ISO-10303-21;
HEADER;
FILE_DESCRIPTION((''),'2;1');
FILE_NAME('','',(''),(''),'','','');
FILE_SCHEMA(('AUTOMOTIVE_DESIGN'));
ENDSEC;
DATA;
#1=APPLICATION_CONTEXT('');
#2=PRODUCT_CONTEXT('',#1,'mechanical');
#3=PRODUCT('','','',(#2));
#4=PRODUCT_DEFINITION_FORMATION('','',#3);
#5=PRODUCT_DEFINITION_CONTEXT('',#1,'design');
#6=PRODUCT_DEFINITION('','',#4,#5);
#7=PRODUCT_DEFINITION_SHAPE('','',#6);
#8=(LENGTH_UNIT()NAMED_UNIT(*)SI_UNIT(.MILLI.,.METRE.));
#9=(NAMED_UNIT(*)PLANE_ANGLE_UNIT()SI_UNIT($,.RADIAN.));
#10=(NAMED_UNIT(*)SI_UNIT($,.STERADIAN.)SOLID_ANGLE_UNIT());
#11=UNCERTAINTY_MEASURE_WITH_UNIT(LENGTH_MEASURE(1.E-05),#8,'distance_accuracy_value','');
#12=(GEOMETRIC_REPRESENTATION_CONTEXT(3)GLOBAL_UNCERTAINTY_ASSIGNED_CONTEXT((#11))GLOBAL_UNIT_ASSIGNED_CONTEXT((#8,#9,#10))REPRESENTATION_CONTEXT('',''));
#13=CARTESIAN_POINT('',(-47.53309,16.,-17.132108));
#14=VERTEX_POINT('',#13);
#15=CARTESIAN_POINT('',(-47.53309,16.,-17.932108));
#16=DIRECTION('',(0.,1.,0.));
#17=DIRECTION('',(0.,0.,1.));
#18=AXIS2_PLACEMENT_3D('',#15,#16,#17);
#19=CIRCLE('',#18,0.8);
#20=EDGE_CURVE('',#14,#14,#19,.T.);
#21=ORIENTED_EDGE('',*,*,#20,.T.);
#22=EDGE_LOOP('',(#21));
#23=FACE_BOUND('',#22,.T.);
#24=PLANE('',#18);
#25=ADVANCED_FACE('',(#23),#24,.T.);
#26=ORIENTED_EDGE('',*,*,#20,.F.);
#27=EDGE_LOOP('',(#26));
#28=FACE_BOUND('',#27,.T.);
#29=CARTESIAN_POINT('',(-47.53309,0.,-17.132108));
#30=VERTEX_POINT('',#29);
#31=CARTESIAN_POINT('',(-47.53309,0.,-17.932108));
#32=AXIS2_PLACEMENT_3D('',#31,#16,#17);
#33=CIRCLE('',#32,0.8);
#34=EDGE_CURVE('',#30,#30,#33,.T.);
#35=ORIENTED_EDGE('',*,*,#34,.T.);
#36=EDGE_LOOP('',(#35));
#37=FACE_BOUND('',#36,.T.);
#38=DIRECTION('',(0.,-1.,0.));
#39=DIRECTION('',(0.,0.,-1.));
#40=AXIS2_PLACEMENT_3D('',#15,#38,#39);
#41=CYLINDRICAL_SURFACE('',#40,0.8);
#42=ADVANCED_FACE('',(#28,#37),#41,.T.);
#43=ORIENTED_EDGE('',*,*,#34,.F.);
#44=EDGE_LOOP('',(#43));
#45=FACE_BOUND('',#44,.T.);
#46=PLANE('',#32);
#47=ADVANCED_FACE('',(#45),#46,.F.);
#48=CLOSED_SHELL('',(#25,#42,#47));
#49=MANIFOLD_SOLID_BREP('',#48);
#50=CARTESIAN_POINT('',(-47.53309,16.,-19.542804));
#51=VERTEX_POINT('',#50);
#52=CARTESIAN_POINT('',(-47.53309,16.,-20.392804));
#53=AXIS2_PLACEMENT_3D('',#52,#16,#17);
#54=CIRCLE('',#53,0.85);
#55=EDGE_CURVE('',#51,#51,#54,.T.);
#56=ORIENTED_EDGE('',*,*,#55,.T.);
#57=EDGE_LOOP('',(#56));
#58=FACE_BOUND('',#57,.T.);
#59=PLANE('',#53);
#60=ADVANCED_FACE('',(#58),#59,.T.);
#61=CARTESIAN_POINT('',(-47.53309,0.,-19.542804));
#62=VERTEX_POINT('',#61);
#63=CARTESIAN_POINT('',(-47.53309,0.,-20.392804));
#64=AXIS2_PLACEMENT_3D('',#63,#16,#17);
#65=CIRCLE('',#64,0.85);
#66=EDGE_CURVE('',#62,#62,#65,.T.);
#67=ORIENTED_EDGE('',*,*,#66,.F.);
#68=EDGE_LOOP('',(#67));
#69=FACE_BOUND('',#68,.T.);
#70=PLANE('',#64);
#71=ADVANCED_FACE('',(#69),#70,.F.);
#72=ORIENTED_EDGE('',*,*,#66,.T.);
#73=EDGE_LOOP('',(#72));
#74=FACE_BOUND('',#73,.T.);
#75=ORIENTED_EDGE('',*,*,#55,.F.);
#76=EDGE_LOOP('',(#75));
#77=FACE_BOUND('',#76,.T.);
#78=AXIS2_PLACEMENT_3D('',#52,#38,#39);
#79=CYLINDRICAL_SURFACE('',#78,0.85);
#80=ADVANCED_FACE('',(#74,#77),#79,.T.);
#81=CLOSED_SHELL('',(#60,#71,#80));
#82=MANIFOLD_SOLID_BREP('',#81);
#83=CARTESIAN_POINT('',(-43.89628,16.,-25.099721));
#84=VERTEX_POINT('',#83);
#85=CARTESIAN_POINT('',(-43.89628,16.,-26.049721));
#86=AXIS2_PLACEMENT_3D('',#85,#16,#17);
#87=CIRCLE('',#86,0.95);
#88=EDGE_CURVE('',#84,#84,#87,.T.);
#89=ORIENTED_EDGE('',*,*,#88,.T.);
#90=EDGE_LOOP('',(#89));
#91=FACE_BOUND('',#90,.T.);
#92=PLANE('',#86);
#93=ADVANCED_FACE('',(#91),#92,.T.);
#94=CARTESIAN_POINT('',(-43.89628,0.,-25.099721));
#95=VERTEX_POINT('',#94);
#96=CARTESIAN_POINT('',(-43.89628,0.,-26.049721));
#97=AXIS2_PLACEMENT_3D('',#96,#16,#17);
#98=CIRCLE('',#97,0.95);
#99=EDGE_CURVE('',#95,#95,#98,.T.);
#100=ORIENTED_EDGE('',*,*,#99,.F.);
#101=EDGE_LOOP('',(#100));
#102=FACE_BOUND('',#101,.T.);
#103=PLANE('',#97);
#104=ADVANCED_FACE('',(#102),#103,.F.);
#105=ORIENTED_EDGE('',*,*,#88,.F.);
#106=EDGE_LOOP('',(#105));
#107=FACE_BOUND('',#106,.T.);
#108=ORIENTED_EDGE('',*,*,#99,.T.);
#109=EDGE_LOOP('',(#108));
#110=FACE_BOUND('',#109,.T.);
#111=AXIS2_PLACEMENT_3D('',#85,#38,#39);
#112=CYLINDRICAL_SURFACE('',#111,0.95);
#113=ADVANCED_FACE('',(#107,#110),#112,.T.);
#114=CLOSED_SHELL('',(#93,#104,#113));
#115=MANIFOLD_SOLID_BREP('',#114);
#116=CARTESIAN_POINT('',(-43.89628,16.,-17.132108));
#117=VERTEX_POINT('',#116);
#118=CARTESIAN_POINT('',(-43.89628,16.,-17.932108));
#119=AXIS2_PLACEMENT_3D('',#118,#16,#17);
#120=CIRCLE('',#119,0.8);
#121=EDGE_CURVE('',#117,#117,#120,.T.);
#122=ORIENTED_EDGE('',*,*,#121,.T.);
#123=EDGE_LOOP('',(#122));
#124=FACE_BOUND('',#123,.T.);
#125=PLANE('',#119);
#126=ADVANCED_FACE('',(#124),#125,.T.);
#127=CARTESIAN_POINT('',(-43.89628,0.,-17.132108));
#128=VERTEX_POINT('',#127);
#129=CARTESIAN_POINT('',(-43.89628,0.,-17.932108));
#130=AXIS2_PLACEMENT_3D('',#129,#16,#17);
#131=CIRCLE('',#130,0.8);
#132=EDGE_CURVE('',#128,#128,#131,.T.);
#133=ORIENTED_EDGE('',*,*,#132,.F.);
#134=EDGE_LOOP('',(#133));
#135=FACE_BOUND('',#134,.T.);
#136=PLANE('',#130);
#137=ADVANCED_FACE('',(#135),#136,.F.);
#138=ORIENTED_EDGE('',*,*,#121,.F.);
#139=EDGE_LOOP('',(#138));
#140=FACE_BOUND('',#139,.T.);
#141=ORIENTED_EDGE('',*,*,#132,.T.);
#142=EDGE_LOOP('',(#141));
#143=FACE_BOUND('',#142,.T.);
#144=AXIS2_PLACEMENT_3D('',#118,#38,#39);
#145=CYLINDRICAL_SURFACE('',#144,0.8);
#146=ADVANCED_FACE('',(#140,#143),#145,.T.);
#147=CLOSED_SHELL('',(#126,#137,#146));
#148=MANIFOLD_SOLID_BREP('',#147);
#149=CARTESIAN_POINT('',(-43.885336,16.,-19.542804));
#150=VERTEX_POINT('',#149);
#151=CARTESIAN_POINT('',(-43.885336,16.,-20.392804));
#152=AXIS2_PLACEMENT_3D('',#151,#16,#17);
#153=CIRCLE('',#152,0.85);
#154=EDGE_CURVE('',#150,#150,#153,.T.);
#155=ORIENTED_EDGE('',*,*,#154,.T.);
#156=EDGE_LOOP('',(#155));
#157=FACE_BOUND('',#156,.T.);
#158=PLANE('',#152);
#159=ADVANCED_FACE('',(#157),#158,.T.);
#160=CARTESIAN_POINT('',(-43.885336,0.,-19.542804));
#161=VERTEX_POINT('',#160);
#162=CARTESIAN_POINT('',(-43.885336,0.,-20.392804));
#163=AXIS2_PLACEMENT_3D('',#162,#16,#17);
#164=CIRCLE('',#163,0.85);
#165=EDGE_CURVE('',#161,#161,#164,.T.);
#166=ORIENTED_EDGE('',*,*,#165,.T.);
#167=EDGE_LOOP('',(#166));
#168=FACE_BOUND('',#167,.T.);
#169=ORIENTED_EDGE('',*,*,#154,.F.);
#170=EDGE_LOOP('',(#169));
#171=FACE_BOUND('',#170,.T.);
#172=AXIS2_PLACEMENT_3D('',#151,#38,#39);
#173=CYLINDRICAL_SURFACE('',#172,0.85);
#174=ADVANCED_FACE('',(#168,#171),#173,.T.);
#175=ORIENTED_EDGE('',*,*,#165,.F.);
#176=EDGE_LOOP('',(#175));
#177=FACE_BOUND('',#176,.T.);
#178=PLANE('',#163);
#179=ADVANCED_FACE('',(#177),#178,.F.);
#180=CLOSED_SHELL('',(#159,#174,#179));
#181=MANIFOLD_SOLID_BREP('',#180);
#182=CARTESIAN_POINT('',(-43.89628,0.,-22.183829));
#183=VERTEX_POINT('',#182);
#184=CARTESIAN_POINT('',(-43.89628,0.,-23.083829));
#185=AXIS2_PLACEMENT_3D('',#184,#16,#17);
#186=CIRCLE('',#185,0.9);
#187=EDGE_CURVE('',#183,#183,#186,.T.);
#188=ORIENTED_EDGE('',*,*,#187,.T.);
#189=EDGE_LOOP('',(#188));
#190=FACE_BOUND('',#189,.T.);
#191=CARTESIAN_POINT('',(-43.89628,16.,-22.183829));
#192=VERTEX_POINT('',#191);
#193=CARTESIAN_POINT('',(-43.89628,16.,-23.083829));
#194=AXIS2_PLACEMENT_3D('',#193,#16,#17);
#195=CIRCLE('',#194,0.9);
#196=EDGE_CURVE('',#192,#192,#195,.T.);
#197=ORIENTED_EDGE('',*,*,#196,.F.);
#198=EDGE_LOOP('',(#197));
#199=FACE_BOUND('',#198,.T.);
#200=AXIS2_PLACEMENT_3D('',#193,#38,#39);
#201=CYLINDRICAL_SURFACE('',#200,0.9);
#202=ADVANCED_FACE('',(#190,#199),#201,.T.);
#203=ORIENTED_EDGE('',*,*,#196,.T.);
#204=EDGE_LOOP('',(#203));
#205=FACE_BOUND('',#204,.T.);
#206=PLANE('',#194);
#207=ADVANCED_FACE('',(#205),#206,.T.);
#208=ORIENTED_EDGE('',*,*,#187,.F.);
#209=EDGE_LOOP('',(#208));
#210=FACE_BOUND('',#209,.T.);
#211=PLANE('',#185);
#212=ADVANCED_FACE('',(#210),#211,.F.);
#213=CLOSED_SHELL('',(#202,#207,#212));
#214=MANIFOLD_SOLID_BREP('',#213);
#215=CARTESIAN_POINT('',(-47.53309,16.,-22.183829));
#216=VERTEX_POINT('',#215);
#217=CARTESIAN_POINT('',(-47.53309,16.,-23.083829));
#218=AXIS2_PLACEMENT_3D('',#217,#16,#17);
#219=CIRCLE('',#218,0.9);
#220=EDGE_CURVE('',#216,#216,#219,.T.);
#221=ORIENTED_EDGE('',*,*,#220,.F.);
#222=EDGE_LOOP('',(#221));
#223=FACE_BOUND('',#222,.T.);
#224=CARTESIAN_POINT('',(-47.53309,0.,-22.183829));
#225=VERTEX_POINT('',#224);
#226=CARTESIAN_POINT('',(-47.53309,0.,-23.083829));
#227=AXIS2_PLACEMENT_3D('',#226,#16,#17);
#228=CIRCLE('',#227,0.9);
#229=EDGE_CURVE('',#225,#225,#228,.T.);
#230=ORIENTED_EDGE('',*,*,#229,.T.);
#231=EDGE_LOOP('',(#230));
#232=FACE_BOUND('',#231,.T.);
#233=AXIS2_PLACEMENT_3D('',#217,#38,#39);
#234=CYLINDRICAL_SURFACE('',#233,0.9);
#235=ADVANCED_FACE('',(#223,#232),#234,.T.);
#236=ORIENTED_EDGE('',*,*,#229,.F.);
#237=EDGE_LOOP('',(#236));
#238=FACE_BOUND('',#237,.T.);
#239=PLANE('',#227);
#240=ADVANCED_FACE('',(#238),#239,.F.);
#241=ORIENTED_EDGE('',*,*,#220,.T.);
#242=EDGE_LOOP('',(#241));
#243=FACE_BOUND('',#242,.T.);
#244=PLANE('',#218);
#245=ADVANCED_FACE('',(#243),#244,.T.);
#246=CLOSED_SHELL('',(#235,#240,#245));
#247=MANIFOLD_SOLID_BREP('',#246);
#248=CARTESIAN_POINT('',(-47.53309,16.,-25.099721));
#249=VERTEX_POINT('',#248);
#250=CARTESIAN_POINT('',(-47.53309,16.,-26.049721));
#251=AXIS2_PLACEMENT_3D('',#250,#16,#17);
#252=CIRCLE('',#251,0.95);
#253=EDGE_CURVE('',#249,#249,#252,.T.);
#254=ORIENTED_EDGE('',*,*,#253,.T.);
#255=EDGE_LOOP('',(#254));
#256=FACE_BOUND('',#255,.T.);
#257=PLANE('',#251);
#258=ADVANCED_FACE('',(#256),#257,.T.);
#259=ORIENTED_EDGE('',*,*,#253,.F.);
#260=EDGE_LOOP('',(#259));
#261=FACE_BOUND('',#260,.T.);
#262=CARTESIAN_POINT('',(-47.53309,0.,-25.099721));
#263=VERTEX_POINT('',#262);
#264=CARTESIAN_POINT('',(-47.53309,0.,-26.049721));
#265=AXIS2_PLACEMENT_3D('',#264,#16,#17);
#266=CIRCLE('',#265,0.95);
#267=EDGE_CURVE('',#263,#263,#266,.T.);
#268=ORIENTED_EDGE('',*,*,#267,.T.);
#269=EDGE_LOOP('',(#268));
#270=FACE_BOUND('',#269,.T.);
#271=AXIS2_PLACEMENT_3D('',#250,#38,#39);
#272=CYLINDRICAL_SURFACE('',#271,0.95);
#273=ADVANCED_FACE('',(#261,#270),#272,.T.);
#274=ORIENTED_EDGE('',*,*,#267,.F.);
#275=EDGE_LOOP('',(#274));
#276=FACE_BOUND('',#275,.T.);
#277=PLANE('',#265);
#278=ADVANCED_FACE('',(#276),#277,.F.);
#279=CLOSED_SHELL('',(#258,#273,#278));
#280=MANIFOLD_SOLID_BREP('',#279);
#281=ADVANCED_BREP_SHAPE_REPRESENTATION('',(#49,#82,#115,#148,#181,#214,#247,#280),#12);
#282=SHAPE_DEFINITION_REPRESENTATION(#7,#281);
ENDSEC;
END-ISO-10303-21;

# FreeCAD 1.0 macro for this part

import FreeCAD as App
import Part
import Sketcher
Q = App.Units.Quantity

doc = App.newDocument("Part")
body = doc.addObject("PartDesign::Body", "Body")

sketch1 = body.newObject("Sketcher::SketchObject", "Sketch")
sketch1.AttachmentSupport = (doc.getObject("XZ_Plane"), [""])
sketch1.MapMode = "FlatFace"
sketch1.addGeometry(Part.Circle(App.Vector(-47.5, -23.1, 0), App.Vector(0, 0, 1), 0.9), False)
sketch1.addConstraint([
    Sketcher.Constraint("Diameter", 0, Q("1.8 mm")),
    Sketcher.Constraint("DistanceX", 0, 3, -1, 1, Q("47.53309 mm")),
    Sketcher.Constraint("DistanceY", 0, 3, -1, 1, Q("23.083829 mm")),
])
pad1 = body.newObject("PartDesign::Pad", "Pad")
pad1.Profile = sketch1
pad1.Length = 16
pad1.Reversed = True
body2 = doc.addObject("PartDesign::Body", "Body001")

sketch2 = body2.newObject("Sketcher::SketchObject", "Sketch001")
sketch2.AttachmentSupport = (doc.getObject("XZ_Plane001"), [""])
sketch2.MapMode = "FlatFace"
sketch2.addGeometry(Part.Circle(App.Vector(-43.9, -23.1, 0), App.Vector(0, 0, 1), 0.9), False)
sketch2.addConstraint([
    Sketcher.Constraint("Diameter", 0, Q("1.8 mm")),
    Sketcher.Constraint("DistanceX", 0, 3, -1, 1, Q("43.89628 mm")),
    Sketcher.Constraint("DistanceY", 0, 3, -1, 1, Q("23.083829 mm")),
])
pad2 = body2.newObject("PartDesign::Pad", "Pad001")
pad2.Profile = sketch2
pad2.Length = 16
pad2.Reversed = True
body3 = doc.addObject("PartDesign::Body", "Body002")

sketch3 = body3.newObject("Sketcher::SketchObject", "Sketch002")
sketch3.AttachmentSupport = (doc.getObject("XZ_Plane002"), [""])
sketch3.MapMode = "FlatFace"
sketch3.addGeometry(Part.Circle(App.Vector(-47.5, -20.4, 0), App.Vector(0, 0, 1), 0.8), False)
sketch3.addConstraint([
    Sketcher.Constraint("Diameter", 0, Q("1.7 mm")),
    Sketcher.Constraint("DistanceX", 0, 3, -1, 1, Q("47.53309 mm")),
    Sketcher.Constraint("DistanceY", 0, 3, -1, 1, Q("20.392804 mm")),
])
pad3 = body3.newObject("PartDesign::Pad", "Pad002")
pad3.Profile = sketch3
pad3.Length = 16
pad3.Reversed = True
body4 = doc.addObject("PartDesign::Body", "Body003")

sketch4 = body4.newObject("Sketcher::SketchObject", "Sketch003")
sketch4.AttachmentSupport = (doc.getObject("XZ_Plane003"), [""])
sketch4.MapMode = "FlatFace"
sketch4.addGeometry(Part.Circle(App.Vector(-43.9, -20.4, 0), App.Vector(0, 0, 1), 0.8), False)
sketch4.addConstraint([
    Sketcher.Constraint("Diameter", 0, Q("1.7 mm")),
    Sketcher.Constraint("DistanceX", 0, 3, -1, 1, Q("43.885336 mm")),
    Sketcher.Constraint("DistanceY", 0, 3, -1, 1, Q("20.392804 mm")),
])
pad4 = body4.newObject("PartDesign::Pad", "Pad003")
pad4.Profile = sketch4
pad4.Length = 16
pad4.Reversed = True
body5 = doc.addObject("PartDesign::Body", "Body004")

sketch5 = body5.newObject("Sketcher::SketchObject", "Sketch004")
sketch5.AttachmentSupport = (doc.getObject("XZ_Plane004"), [""])
sketch5.MapMode = "FlatFace"
sketch5.addGeometry(Part.Circle(App.Vector(-47.5, -17.9, 0), App.Vector(0, 0, 1), 0.8), False)
sketch5.addConstraint([
    Sketcher.Constraint("Diameter", 0, Q("1.6 mm")),
    Sketcher.Constraint("DistanceX", 0, 3, -1, 1, Q("47.53309 mm")),
    Sketcher.Constraint("DistanceY", 0, 3, -1, 1, Q("17.932108 mm")),
])
pad5 = body5.newObject("PartDesign::Pad", "Pad004")
pad5.Profile = sketch5
pad5.Length = 16
pad5.Reversed = True
body6 = doc.addObject("PartDesign::Body", "Body005")

sketch6 = body6.newObject("Sketcher::SketchObject", "Sketch005")
sketch6.AttachmentSupport = (doc.getObject("XZ_Plane005"), [""])
sketch6.MapMode = "FlatFace"
sketch6.addGeometry(Part.Circle(App.Vector(-43.9, -17.9, 0), App.Vector(0, 0, 1), 0.8), False)
sketch6.addConstraint([
    Sketcher.Constraint("Diameter", 0, Q("1.6 mm")),
    Sketcher.Constraint("DistanceX", 0, 3, -1, 1, Q("43.89628 mm")),
    Sketcher.Constraint("DistanceY", 0, 3, -1, 1, Q("17.932108 mm")),
])
pad6 = body6.newObject("PartDesign::Pad", "Pad005")
pad6.Profile = sketch6
pad6.Length = 16
pad6.Reversed = True
body7 = doc.addObject("PartDesign::Body", "Body006")

sketch7 = body7.newObject("Sketcher::SketchObject", "Sketch006")
sketch7.AttachmentSupport = (doc.getObject("XZ_Plane006"), [""])
sketch7.MapMode = "FlatFace"
sketch7.addGeometry(Part.Circle(App.Vector(-47.5, -26, 0), App.Vector(0, 0, 1), 0.9), False)
sketch7.addConstraint([
    Sketcher.Constraint("Diameter", 0, Q("1.9 mm")),
    Sketcher.Constraint("DistanceX", 0, 3, -1, 1, Q("47.53309 mm")),
    Sketcher.Constraint("DistanceY", 0, 3, -1, 1, Q("26.049721 mm")),
])
pad7 = body7.newObject("PartDesign::Pad", "Pad006")
pad7.Profile = sketch7
pad7.Length = 16
pad7.Reversed = True
body8 = doc.addObject("PartDesign::Body", "Body007")

sketch8 = body8.newObject("Sketcher::SketchObject", "Sketch007")
sketch8.AttachmentSupport = (doc.getObject("XZ_Plane007"), [""])
sketch8.MapMode = "FlatFace"
sketch8.addGeometry(Part.Circle(App.Vector(-43.9, -26, 0), App.Vector(0, 0, 1), 0.9), False)
sketch8.addConstraint([
    Sketcher.Constraint("Diameter", 0, Q("1.9 mm")),
    Sketcher.Constraint("DistanceX", 0, 3, -1, 1, Q("43.89628 mm")),
    Sketcher.Constraint("DistanceY", 0, 3, -1, 1, Q("26.049721 mm")),
])
pad8 = body8.newObject("PartDesign::Pad", "Pad007")
pad8.Profile = sketch8
pad8.Length = 16
pad8.Reversed = True

doc.recompute()
